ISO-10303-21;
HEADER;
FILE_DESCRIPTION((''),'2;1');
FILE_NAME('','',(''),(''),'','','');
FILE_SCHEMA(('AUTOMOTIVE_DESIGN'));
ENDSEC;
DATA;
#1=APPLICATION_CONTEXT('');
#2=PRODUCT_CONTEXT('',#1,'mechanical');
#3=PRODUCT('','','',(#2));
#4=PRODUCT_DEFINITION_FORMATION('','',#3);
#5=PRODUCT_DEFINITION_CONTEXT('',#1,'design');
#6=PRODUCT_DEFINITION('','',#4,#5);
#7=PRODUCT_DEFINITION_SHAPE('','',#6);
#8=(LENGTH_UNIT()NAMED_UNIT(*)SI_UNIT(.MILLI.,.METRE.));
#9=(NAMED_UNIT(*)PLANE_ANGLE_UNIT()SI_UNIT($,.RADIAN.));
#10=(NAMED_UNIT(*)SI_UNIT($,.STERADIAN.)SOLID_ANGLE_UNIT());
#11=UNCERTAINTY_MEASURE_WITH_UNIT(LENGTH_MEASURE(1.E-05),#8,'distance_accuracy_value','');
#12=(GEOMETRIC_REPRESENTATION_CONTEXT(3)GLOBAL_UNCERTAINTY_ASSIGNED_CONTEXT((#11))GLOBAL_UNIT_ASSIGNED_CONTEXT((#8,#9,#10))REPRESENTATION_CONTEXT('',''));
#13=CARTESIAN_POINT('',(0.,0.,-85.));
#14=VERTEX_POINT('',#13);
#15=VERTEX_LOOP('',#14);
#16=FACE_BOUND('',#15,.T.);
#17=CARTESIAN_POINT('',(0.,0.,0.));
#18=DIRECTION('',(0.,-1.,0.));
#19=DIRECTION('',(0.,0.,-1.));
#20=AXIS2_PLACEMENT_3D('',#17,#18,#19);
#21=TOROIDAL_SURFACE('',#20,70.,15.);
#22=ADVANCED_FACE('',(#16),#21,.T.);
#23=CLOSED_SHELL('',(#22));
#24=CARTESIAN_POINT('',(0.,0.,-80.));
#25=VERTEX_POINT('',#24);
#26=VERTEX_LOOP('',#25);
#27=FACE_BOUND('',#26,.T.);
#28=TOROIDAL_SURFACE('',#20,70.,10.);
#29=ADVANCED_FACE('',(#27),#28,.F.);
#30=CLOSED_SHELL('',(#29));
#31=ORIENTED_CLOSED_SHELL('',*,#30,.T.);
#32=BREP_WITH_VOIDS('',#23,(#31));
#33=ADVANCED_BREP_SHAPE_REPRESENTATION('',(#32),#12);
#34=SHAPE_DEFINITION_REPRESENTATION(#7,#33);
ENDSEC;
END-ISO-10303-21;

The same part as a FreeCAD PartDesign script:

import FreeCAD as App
import Part
import Sketcher
from FreeCAD import Vector

doc = App.newDocument("Part")
body = doc.addObject("PartDesign::Body", "Body")

# Sketch on YZ plane
sketch1 = body.newObject("Sketcher::SketchObject", "Sketch")
sketch1.AttachmentSupport = (doc.getObject("YZ_Plane"), [""])
sketch1.MapMode = "FlatFace"
sketch1.addGeometry(Part.Circle(Vector(0, 70, 0), Vector(0, 0, 1), 15), False)
sketch1.addConstraint([
    Sketcher.Constraint("PointOnObject", 0, 3, -2),
    Sketcher.Constraint("Diameter", 0, 30.0),
    Sketcher.Constraint("DistanceY", -1, 1, 0, 3, 70.0),
])
revolution = body.newObject("PartDesign::Revolution", "Revolution")
revolution.Profile = sketch1
revolution.ReferenceAxis = (sketch1, ["H_Axis"])
revolution.Angle = 360

# Sketch on YZ plane
sketch2 = body.newObject("Sketcher::SketchObject", "Sketch001")
sketch2.AttachmentSupport = (doc.getObject("YZ_Plane"), [""])
sketch2.MapMode = "FlatFace"
sketch2.addGeometry(Part.Circle(Vector(0, 70, 0), Vector(0, 0, 1), 10), False)
sketch2.addConstraint([
    Sketcher.Constraint("PointOnObject", 0, 3, -2),
    Sketcher.Constraint("Diameter", 0, 20.0),
    Sketcher.Constraint("DistanceY", -1, 1, 0, 3, 70.0),
])
groove = body.newObject("PartDesign::Groove", "Groove")
groove.Profile = sketch2
groove.ReferenceAxis = (sketch2, ["H_Axis"])
groove.Angle = 360

doc.recompute()
